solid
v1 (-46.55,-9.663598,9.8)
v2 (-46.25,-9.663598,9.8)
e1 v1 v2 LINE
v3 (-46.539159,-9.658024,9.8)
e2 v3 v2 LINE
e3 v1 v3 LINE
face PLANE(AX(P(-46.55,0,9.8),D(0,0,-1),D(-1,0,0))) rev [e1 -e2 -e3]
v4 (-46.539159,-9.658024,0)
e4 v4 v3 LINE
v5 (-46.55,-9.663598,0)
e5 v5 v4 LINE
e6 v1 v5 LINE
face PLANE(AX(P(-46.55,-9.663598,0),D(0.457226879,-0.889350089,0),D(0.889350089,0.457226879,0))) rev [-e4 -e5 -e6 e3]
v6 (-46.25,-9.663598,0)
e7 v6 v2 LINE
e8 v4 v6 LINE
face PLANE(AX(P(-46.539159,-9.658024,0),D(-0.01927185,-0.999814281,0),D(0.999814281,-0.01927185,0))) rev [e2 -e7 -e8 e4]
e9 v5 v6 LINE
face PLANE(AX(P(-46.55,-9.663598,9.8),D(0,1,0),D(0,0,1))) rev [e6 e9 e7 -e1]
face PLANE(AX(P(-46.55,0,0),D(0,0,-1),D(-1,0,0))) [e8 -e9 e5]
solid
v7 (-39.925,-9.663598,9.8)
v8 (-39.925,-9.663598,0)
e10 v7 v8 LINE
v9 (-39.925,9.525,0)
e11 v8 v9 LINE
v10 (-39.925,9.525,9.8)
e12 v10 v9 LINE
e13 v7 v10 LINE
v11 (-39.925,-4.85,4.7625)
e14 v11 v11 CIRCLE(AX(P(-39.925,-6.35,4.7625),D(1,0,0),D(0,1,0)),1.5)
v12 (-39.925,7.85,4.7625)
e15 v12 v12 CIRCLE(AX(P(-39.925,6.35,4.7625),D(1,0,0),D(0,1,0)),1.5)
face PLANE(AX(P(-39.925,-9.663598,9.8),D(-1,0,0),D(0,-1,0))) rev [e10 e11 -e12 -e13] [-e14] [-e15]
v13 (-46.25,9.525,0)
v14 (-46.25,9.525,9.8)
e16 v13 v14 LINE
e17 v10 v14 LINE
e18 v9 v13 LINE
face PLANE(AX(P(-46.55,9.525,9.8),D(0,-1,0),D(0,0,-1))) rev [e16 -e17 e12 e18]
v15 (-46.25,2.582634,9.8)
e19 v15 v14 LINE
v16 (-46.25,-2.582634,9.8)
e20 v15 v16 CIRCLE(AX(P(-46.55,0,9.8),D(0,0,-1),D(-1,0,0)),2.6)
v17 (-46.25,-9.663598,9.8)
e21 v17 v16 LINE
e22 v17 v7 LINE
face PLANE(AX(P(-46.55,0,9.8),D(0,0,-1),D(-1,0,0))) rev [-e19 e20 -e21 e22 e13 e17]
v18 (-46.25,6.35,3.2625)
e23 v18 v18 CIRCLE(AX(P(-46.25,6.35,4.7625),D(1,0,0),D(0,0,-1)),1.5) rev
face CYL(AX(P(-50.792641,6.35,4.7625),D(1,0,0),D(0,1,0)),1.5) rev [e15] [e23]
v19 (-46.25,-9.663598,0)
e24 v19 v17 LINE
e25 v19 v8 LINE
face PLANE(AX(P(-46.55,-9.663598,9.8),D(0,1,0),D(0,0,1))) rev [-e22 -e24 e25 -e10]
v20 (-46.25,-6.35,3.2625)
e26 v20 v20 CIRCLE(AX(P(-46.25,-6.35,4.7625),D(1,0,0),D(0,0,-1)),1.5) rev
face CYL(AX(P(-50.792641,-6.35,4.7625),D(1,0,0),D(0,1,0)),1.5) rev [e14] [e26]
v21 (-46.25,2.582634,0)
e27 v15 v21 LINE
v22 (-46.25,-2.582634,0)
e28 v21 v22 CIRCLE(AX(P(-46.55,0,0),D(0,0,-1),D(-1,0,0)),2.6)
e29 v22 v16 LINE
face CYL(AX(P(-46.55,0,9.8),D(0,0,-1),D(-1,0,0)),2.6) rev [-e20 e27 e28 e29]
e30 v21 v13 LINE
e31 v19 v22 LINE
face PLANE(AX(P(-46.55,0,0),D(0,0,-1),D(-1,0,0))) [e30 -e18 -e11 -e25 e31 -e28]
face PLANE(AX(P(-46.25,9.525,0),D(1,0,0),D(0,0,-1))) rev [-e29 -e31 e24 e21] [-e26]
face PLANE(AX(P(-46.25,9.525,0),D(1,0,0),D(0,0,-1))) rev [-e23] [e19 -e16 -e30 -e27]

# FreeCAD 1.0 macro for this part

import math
import FreeCAD as App
import Part
import Sketcher

V = App.Vector


def add_polygon(sketch, points):
    """Adds a closed chain of lines whose ends are joined by coincident constraints."""
    first, n = sketch.GeometryCount, len(points)
    for a, b in zip(points, points[1:] + points[:1]):
        sketch.addGeometry(Part.LineSegment(App.Vector(*a, 0), App.Vector(*b, 0)), False)
    for i in range(n):
        sketch.addConstraint(Sketcher.Constraint("Coincident", first + i, 2, first + (i + 1) % n, 1))

doc = App.newDocument("Part")
body = doc.addObject("PartDesign::Body", "Body")
body.AllowCompound = True

sketch1 = body.newObject("Sketcher::SketchObject", "Sketch")
sketch1.AttachmentSupport = (doc.getObject("XY_Plane"), [""])
sketch1.MapMode = "FlatFace"
sketch1.addGeometry([
    Part.LineSegment(V(-46.5, -2.6, 0), V(-46.5, -9.7, 0)),
    Part.LineSegment(V(-46.5, -9.7, 0), V(-39.9, -9.7, 0)),
    Part.LineSegment(V(-39.9, -9.7, 0), V(-39.9, 9.5, 0)),
    Part.LineSegment(V(-39.9, 9.5, 0), V(-46.5, 9.5, 0)),
    Part.LineSegment(V(-46.5, 9.5, 0), V(-46.5, 2.6, 0)),
    Part.ArcOfCircle(Part.Circle(V(-46.5, 0, 0), V(0, 0, 1), 2.6), math.radians(-90), math.radians(90)),
], False)
sketch1.addConstraint([
    Sketcher.Constraint("Coincident", 0, 2, 1, 1),
    Sketcher.Constraint("Coincident", 1, 2, 2, 1),
    Sketcher.Constraint("Coincident", 2, 2, 3, 1),
    Sketcher.Constraint("Coincident", 3, 2, 4, 1),
    Sketcher.Constraint("Coincident", 4, 2, 5, 2),
    Sketcher.Constraint("Coincident", 5, 1, 0, 1),
    Sketcher.Constraint("Vertical", 0),
    Sketcher.Constraint("Horizontal", 1),
    Sketcher.Constraint("Vertical", 2),
    Sketcher.Constraint("Horizontal", 3),
    Sketcher.Constraint("Vertical", 4),
    Sketcher.Constraint("Symmetric", 4, 2, 5, 1, -1),
    Sketcher.Constraint("Vertical", 5, 3, 0, 2),
    Sketcher.Constraint("Radius", 5, 2.6),
    Sketcher.Constraint("DistanceX", 1, 1, 1, 2, 6.625),
    Sketcher.Constraint("DistanceY", 4, 2, 4, 1, 6.925),
    Sketcher.Constraint("DistanceX", 5, 3, -1, 1, 46.55),
    Sketcher.Constraint("DistanceY", 0, 2, 0, 1, 7.063598),
])
pad1 = body.newObject("PartDesign::Pad", "Pad")
pad1.Profile = sketch1
pad1.Length = 9.8

sketch2 = body.newObject("Sketcher::SketchObject", "Sketch001")
sketch2.AttachmentSupport = (doc.getObject("YZ_Plane"), [""])
sketch2.MapMode = "FlatFace"
sketch2.AttachmentOffset = App.Placement(V(0, 0, -39.925), App.Rotation())
sketch2.addGeometry([
    Part.Circle(V(6.3, 4.8, 0), V(0, 0, 1), 1.5),
    Part.Circle(V(-6.3, 4.8, 0), V(0, 0, 1), 1.5),
], False)
sketch2.addConstraint([
    Sketcher.Constraint("Equal", 0, 1),
    Sketcher.Constraint("Symmetric", 0, 3, 1, 3, -2),
    Sketcher.Constraint("Diameter", 0, 3.0),
    Sketcher.Constraint("DistanceX", 1, 3, 0, 3, 12.7),
    Sketcher.Constraint("DistanceY", -1, 1, 0, 3, 4.7625),
])
pocket1 = body.newObject("PartDesign::Pocket", "Pocket")
pocket1.Profile = sketch2
pocket1.Length = 6.625

sketch3 = body.newObject("Sketcher::SketchObject", "Sketch002")
sketch3.AttachmentSupport = (doc.getObject("XY_Plane"), [""])
sketch3.MapMode = "FlatFace"
sketch3.AttachmentOffset = App.Placement(V(0, 0, 9.8), App.Rotation())
add_polygon(sketch3, [(-46.55, 9.525), (-46.55, -9.664), (-46.539, -9.658), (-46.25, -9.664), (-46.25, 9.525)])
sketch3.addConstraint([
    Sketcher.Constraint("Vertical", 0),
    Sketcher.Constraint("Vertical", 3),
    Sketcher.Constraint("Horizontal", 4),
    Sketcher.Constraint("Horizontal", 0, 2, 2, 2),
    Sketcher.Constraint("DistanceX", 4, 2, 4, 1, 0.3),
    Sketcher.Constraint("DistanceX", 0, 2, -1, 1, 46.55),
    Sketcher.Constraint("DistanceY", -1, 1, 3, 2, 9.525),
    Sketcher.Constraint("Distance", 1, 0.01219),
    Sketcher.Constraint("DistanceY", 0, 2, 0, 1, 19.188598),
    Sketcher.Constraint("DistanceX", 1, 2, -1, 1, 46.539159),
])
pocket2 = body.newObject("PartDesign::Pocket", "Pocket001")
pocket2.Profile = sketch3
pocket2.Type = "ThroughAll"

doc.recompute()
